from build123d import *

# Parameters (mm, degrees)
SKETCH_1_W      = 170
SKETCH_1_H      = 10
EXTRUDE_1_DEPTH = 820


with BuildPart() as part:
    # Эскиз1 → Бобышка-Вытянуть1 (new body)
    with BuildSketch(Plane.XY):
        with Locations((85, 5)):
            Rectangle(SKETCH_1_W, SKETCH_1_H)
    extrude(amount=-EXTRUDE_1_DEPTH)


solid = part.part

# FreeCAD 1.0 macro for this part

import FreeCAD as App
import Part
import Sketcher
from FreeCAD import Vector
Q = App.Units.Quantity

doc = App.newDocument("Part")
body = doc.addObject("PartDesign::Body", "Body")

sketch1 = doc.addObject("Sketcher::SketchObject", "Sketch")
body.addObject(sketch1)
sketch1.AttachmentSupport = (doc.XY_Plane, [""])
sketch1.MapMode = "FlatFace"
sketch1.addGeometry([
    Part.LineSegment(Vector(0, 10, 0), Vector(0, 0, 0)),
    Part.LineSegment(Vector(0, 0, 0), Vector(170, 0, 0)),
    Part.LineSegment(Vector(170, 0, 0), Vector(170, 10, 0)),
    Part.LineSegment(Vector(170, 10, 0), Vector(0, 10, 0)),
], False)
sketch1.addConstraint([
    Sketcher.Constraint("Coincident", 0, 2, 1, 1),
    Sketcher.Constraint("Coincident", 1, 2, 2, 1),
    Sketcher.Constraint("Coincident", 2, 2, 3, 1),
    Sketcher.Constraint("Coincident", 3, 2, 0, 1),
    Sketcher.Constraint("Vertical", 0),
    Sketcher.Constraint("Horizontal", 1),
    Sketcher.Constraint("Vertical", 2),
    Sketcher.Constraint("Horizontal", 3),
    Sketcher.Constraint("Coincident", 0, 2, -1, 1),
    Sketcher.Constraint("DistanceX", 1, 1, 1, 2, Q("170 mm")),
    Sketcher.Constraint("DistanceY", 0, 2, 0, 1, Q("10 mm")),
])
pad1 = doc.addObject("PartDesign::Pad", "Pad")
body.addObject(pad1)
pad1.Profile = sketch1
pad1.Length = 820
pad1.Reversed = True

doc.recompute()
